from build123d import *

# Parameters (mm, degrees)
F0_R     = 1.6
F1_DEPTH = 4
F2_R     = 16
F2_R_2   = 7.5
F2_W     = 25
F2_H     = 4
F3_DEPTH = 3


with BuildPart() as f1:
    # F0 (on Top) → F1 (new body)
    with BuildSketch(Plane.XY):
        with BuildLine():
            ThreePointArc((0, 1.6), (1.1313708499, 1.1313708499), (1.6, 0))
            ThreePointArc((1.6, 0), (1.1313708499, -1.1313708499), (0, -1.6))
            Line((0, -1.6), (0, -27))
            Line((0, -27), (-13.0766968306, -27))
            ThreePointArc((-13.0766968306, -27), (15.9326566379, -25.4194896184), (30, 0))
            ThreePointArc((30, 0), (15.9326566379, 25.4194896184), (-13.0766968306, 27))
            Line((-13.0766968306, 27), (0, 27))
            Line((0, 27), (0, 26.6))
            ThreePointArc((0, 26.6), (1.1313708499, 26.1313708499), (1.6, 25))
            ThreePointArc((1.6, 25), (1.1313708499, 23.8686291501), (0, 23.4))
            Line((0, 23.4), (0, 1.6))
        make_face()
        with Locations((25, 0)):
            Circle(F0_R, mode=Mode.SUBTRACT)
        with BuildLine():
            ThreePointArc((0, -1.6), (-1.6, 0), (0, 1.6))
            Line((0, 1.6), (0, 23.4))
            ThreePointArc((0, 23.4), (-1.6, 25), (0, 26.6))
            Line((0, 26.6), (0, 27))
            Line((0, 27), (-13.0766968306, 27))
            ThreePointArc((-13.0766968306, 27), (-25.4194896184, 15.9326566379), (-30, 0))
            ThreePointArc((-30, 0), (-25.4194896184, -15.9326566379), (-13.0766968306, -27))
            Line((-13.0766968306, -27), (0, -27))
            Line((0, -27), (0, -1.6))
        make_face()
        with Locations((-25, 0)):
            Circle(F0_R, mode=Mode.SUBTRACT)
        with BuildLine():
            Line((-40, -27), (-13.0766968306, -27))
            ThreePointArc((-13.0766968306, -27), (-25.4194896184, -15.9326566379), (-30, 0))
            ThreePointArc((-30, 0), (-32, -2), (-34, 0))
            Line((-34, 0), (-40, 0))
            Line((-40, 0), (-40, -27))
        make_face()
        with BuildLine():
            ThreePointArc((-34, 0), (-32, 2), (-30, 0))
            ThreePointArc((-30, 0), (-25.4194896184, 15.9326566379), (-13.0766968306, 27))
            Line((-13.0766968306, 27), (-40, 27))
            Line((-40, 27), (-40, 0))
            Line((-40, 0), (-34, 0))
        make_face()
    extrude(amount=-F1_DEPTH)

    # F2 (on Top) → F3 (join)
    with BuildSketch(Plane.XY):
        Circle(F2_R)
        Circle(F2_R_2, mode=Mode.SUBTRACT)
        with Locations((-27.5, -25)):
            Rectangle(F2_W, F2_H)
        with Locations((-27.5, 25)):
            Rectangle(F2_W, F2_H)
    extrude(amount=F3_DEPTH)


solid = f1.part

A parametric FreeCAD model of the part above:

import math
import FreeCAD as App
import Part
import Sketcher

doc = App.newDocument("Part")
body = doc.addObject("PartDesign::Body", "Body")

# Sketch on XY plane
sketch1 = doc.addObject("Sketcher::SketchObject", "Sketch")
body.addObject(sketch1)
sketch1.AttachmentSupport = (doc.XY_Plane, [""])
sketch1.MapMode = "FlatFace"
sketch1.addGeometry([
    Part.ArcOfCircle(Part.Circle(App.Vector(0, 0, 0), App.Vector(0, 0, 1), 30), math.radians(-116), math.radians(0)),  # 0
    Part.ArcOfCircle(Part.Circle(App.Vector(0, 0, 0), App.Vector(0, 0, 1), 30), math.radians(0), math.radians(116)),  # 1
    Part.LineSegment(App.Vector(-13.1, 27, 0), App.Vector(-40, 27, 0)),  # 2
    Part.LineSegment(App.Vector(-40, 27, 0), App.Vector(-40, -27, 0)),  # 3
    Part.LineSegment(App.Vector(-40, -27, 0), App.Vector(-13.1, -27, 0)),  # 4
    Part.Circle(App.Vector(-32, 0, 0), App.Vector(0, 0, 1), 2),  # 5
    Part.Circle(App.Vector(-25, 0, 0), App.Vector(0, 0, 1), 1.6),  # 6
    Part.ArcOfCircle(Part.Circle(App.Vector(0, 0, 0), App.Vector(0, 0, 1), 1.6), math.radians(0), math.radians(90)),  # 7
    Part.ArcOfCircle(Part.Circle(App.Vector(0, 0, 0), App.Vector(0, 0, 1), 1.6), math.radians(-90), math.radians(0)),  # 8
    Part.ArcOfCircle(Part.Circle(App.Vector(0, 0, 0), App.Vector(0, 0, 1), 1.6), math.radians(90), math.radians(270)),  # 9
    Part.Circle(App.Vector(25, 0, 0), App.Vector(0, 0, 1), 1.6),  # 10
    Part.ArcOfCircle(Part.Circle(App.Vector(0, 25, 0), App.Vector(0, 0, 1), 1.6), math.radians(-90), math.radians(0)),  # 11
    Part.ArcOfCircle(Part.Circle(App.Vector(0, 25, 0), App.Vector(0, 0, 1), 1.6), math.radians(90), math.radians(270)),  # 12
    Part.ArcOfCircle(Part.Circle(App.Vector(0, 25, 0), App.Vector(0, 0, 1), 1.6), math.radians(0), math.radians(90)),  # 13
], False)
sketch1.addConstraint([
    Sketcher.Constraint("Tangent", 0, 2, 1, 1),
    Sketcher.Constraint("Coincident", 1, 2, 2, 1),
    Sketcher.Constraint("Coincident", 2, 2, 3, 1),
    Sketcher.Constraint("Coincident", 3, 2, 4, 1),
    Sketcher.Constraint("Coincident", 4, 2, 0, 1),
    Sketcher.Constraint("Tangent", 7, 1, 8, 2),
    Sketcher.Constraint("Tangent", 8, 1, 9, 2),
    Sketcher.Constraint("Tangent", 9, 1, 7, 2),
    Sketcher.Constraint("Tangent", 11, 1, 12, 2),
    Sketcher.Constraint("Tangent", 12, 1, 13, 2),
    Sketcher.Constraint("Tangent", 13, 1, 11, 2),
    Sketcher.Constraint("Horizontal", 2),
    Sketcher.Constraint("Vertical", 3),
    Sketcher.Constraint("Horizontal", 4),
    Sketcher.Constraint("Coincident", 0, 3, -1, 1),
    Sketcher.Constraint("Coincident", 7, 3, -1, 1),
    Sketcher.Constraint("Equal", 0, 1),
    Sketcher.Constraint("Equal", 6, 7),
    Sketcher.Constraint("Equal", 9, 10),
    Sketcher.Constraint("Equal", 10, 11),
    Sketcher.Constraint("Symmetric", 6, 3, 10, 3, -1, 1),
    Sketcher.Constraint("PointOnObject", 5, 3, -1),
    Sketcher.Constraint("PointOnObject", 6, 3, -1),
    Sketcher.Constraint("PointOnObject", 11, 3, -2),
    Sketcher.Constraint("PointOnObject", 0, 2, -1),
    Sketcher.Constraint("PointOnObject", 7, 1, -1),
    Sketcher.Constraint("PointOnObject", 8, 1, -2),
    Sketcher.Constraint("PointOnObject", 9, 1, -2),
    Sketcher.Constraint("PointOnObject", 11, 1, -2),
    Sketcher.Constraint("PointOnObject", 12, 1, -2),
    Sketcher.Constraint("Horizontal", 12, 3, 13, 1),
    Sketcher.Constraint("Vertical", 1, 2, 4, 2),
    Sketcher.Constraint("Diameter", 5, 4.0),
    Sketcher.Constraint("Radius", 0, 30.0),
    Sketcher.Constraint("Diameter", 6, 3.2),
    Sketcher.Constraint("DistanceY", 3, 2, 3, 1, 54.0),
    Sketcher.Constraint("DistanceX", 5, 3, -1, 1, 32.0),
    Sketcher.Constraint("DistanceX", 6, 3, -1, 1, 25.0),
    Sketcher.Constraint("DistanceY", -1, 1, 11, 3, 25.0),
    Sketcher.Constraint("DistanceX", 2, 2, -1, 1, 40.0),
])
pad1 = doc.addObject("PartDesign::Pad", "Pad")
body.addObject(pad1)
pad1.Profile = sketch1
pad1.Length = 4
pad1.Reversed = True

# Sketch on XY plane
sketch2 = doc.addObject("Sketcher::SketchObject", "Sketch001")
body.addObject(sketch2)
sketch2.AttachmentSupport = (doc.XY_Plane, [""])
sketch2.MapMode = "FlatFace"
sketch2.addGeometry([
    Part.Circle(App.Vector(0, 0, 0), App.Vector(0, 0, 1), 16),  # 0
    Part.Circle(App.Vector(0, 0, 0), App.Vector(0, 0, 1), 7.5),  # 1
    Part.LineSegment(App.Vector(-40, -23, 0), App.Vector(-40, -27, 0)),  # 2
    Part.LineSegment(App.Vector(-40, -27, 0), App.Vector(-15, -27, 0)),  # 3
    Part.LineSegment(App.Vector(-15, -27, 0), App.Vector(-15, -23, 0)),  # 4
    Part.LineSegment(App.Vector(-15, -23, 0), App.Vector(-40, -23, 0)),  # 5
    Part.LineSegment(App.Vector(-40, 27, 0), App.Vector(-40, 23, 0)),  # 6
    Part.LineSegment(App.Vector(-40, 23, 0), App.Vector(-15, 23, 0)),  # 7
    Part.LineSegment(App.Vector(-15, 23, 0), App.Vector(-15, 27, 0)),  # 8
    Part.LineSegment(App.Vector(-15, 27, 0), App.Vector(-40, 27, 0)),  # 9
], False)
sketch2.addConstraint([
    Sketcher.Constraint("Coincident", 2, 2, 3, 1),
    Sketcher.Constraint("Coincident", 3, 2, 4, 1),
    Sketcher.Constraint("Coincident", 4, 2, 5, 1),
    Sketcher.Constraint("Coincident", 5, 2, 2, 1),
    Sketcher.Constraint("Coincident", 6, 2, 7, 1),
    Sketcher.Constraint("Coincident", 7, 2, 8, 1),
    Sketcher.Constraint("Coincident", 8, 2, 9, 1),
    Sketcher.Constraint("Coincident", 9, 2, 6, 1),
    Sketcher.Constraint("Vertical", 2),
    Sketcher.Constraint("Horizontal", 3),
    Sketcher.Constraint("Vertical", 4),
    Sketcher.Constraint("Horizontal", 5),
    Sketcher.Constraint("Vertical", 6),
    Sketcher.Constraint("Horizontal", 7),
    Sketcher.Constraint("Vertical", 8),
    Sketcher.Constraint("Horizontal", 9),
    Sketcher.Constraint("Coincident", 0, 3, -1, 1),
    Sketcher.Constraint("Coincident", 1, 3, -1, 1),
    Sketcher.Constraint("Symmetric", 5, 2, 6, 2, -1),
    Sketcher.Constraint("Symmetric", 3, 2, 8, 2, -1),
    Sketcher.Constraint("Diameter", 0, 32.0),
    Sketcher.Constraint("Diameter", 1, 15.0),
    Sketcher.Constraint("DistanceX", 3, 1, 3, 2, 25.0),
    Sketcher.Constraint("DistanceY", 2, 2, 2, 1, 4.0),
    Sketcher.Constraint("DistanceX", 2, 2, -1, 1, 40.0),
    Sketcher.Constraint("DistanceY", 2, 2, -1, 1, 27.0),
])
pad2 = doc.addObject("PartDesign::Pad", "Pad001")
body.addObject(pad2)
pad2.Profile = sketch2
pad2.Length = 3

doc.recompute()
